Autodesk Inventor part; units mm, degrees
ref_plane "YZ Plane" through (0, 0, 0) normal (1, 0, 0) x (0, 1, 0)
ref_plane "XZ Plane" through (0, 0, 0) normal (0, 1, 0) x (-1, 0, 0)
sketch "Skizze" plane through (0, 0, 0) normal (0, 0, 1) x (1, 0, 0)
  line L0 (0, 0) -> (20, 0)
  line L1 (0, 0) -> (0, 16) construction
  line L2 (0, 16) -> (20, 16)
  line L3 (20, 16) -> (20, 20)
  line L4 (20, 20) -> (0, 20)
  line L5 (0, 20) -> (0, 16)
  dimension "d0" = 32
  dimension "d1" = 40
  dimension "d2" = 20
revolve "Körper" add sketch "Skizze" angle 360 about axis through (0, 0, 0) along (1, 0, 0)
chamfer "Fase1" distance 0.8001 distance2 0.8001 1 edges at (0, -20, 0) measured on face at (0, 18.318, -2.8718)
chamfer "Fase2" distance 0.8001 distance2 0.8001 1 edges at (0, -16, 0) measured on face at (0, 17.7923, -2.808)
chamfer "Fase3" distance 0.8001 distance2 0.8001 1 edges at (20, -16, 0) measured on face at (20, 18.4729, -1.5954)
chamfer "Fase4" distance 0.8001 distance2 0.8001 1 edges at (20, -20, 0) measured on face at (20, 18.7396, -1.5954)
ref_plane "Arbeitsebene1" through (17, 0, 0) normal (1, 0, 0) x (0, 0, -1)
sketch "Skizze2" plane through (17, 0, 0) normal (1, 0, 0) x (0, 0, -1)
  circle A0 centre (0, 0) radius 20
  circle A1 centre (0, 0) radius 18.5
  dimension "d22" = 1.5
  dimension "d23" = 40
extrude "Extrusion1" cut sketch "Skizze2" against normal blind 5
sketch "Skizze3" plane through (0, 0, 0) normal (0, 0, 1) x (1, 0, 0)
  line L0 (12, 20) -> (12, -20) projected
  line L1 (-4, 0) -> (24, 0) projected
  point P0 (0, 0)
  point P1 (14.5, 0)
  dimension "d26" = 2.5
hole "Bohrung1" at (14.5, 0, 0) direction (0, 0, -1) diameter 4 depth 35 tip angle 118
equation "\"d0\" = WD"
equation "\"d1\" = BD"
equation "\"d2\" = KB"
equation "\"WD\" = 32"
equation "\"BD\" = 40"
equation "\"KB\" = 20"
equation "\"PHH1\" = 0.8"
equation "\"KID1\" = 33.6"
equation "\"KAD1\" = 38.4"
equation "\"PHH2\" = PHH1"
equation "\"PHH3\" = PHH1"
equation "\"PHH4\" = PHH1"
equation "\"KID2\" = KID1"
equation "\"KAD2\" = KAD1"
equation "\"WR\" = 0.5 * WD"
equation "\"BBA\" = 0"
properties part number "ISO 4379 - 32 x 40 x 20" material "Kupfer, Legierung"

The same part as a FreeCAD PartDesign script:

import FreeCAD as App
import Part
import Sketcher
from FreeCAD import Vector
Q = App.Units.Quantity


def edges_at(feature, points):
    """Names of the edges that pass closest to the given points."""
    edges = feature.Shape.Edges
    near = lambda p: min(range(len(edges)), key=lambda i: edges[i].distToShape(Part.Vertex(*p))[0])
    return sorted({f"Edge{near(p) + 1}" for p in points})

doc = App.newDocument("Part")
body = doc.addObject("PartDesign::Body", "Body")

# Sketch on XY plane
sketch1 = doc.addObject("Sketcher::SketchObject", "Sketch")
body.addObject(sketch1)
sketch1.AttachmentSupport = (doc.XY_Plane, [""])
sketch1.MapMode = "FlatFace"
sketch1.addGeometry(Part.LineSegment(Vector(0, 20, 0), Vector(0, 16, 0)), False)
sketch1.addGeometry(Part.LineSegment(Vector(0, 16, 0), Vector(20, 16, 0)), False)
sketch1.addGeometry(Part.LineSegment(Vector(20, 16, 0), Vector(20, 20, 0)), False)
sketch1.addGeometry(Part.LineSegment(Vector(20, 20, 0), Vector(0, 20, 0)), False)
sketch1.addConstraint(Sketcher.Constraint("Coincident", 0, 2, 1, 1))
sketch1.addConstraint(Sketcher.Constraint("Coincident", 1, 2, 2, 1))
sketch1.addConstraint(Sketcher.Constraint("Coincident", 2, 2, 3, 1))
sketch1.addConstraint(Sketcher.Constraint("Coincident", 3, 2, 0, 1))
sketch1.addConstraint(Sketcher.Constraint("Vertical", 0))
sketch1.addConstraint(Sketcher.Constraint("Horizontal", 1))
sketch1.addConstraint(Sketcher.Constraint("Vertical", 2))
sketch1.addConstraint(Sketcher.Constraint("Horizontal", 3))
sketch1.addConstraint(Sketcher.Constraint("PointOnObject", 0, 2, -2))
sketch1.addConstraint(Sketcher.Constraint("DistanceX", 1, 1, 1, 2, Q("20 mm")))
sketch1.addConstraint(Sketcher.Constraint("DistanceY", -1, 1, 2, 2, Q("20 mm")))
sketch1.addConstraint(Sketcher.Constraint("DistanceY", 0, 2, 0, 1, Q("4 mm")))
revolution = doc.addObject("PartDesign::Revolution", "Revolution")
body.addObject(revolution)
revolution.Profile = sketch1
revolution.ReferenceAxis = (sketch1, ["H_Axis"])
revolution.Angle = 360
doc.recompute()

chamfer = doc.addObject("PartDesign::Chamfer", "Chamfer")
body.addObject(chamfer)
chamfer.Base = (revolution, edges_at(revolution, [(0, -20, 0)]))
chamfer.ChamferType = "Two distances"
chamfer.Size = 0.8001
chamfer.Size2 = 0.8001
doc.recompute()

chamfer2 = doc.addObject("PartDesign::Chamfer", "Chamfer001")
body.addObject(chamfer2)
chamfer2.Base = (chamfer, edges_at(chamfer, [(0, -16, 0)]))
chamfer2.ChamferType = "Two distances"
chamfer2.Size = 0.8001
chamfer2.Size2 = 0.8001
doc.recompute()

chamfer3 = doc.addObject("PartDesign::Chamfer", "Chamfer002")
body.addObject(chamfer3)
chamfer3.Base = (chamfer2, edges_at(chamfer2, [(20, -16, 0)]))
chamfer3.ChamferType = "Two distances"
chamfer3.Size = 0.8001
chamfer3.Size2 = 0.8001
doc.recompute()

chamfer4 = doc.addObject("PartDesign::Chamfer", "Chamfer003")
body.addObject(chamfer4)
chamfer4.Base = (chamfer3, edges_at(chamfer3, [(20, -20, 0)]))
chamfer4.ChamferType = "Two distances"
chamfer4.Size = 0.8001
chamfer4.Size2 = 0.8001

# Sketch on YZ plane
sketch2 = doc.addObject("Sketcher::SketchObject", "Sketch001")
body.addObject(sketch2)
sketch2.AttachmentSupport = (doc.YZ_Plane, [""])
sketch2.MapMode = "FlatFace"
sketch2.AttachmentOffset = App.Placement(Vector(0, 0, 17), App.Rotation())
sketch2.addGeometry(Part.Circle(Vector(0, 0, 0), Vector(0, 0, 1), 20), False)
sketch2.addGeometry(Part.Circle(Vector(0, 0, 0), Vector(0, 0, 1), 18), False)
sketch2.addConstraint(Sketcher.Constraint("Coincident", 0, 3, -1, 1))
sketch2.addConstraint(Sketcher.Constraint("Coincident", 1, 3, -1, 1))
sketch2.addConstraint(Sketcher.Constraint("Diameter", 0, Q("40 mm")))
sketch2.addConstraint(Sketcher.Constraint("Diameter", 1, Q("37 mm")))
pocket1 = doc.addObject("PartDesign::Pocket", "Pocket")
body.addObject(pocket1)
pocket1.Profile = sketch2
pocket1.Length = 5

# Sketch on XY plane
sketch3 = doc.addObject("Sketcher::SketchObject", "Sketch002")
body.addObject(sketch3)
sketch3.AttachmentSupport = (doc.XY_Plane, [""])
sketch3.MapMode = "FlatFace"
sketch3.addGeometry(Part.Circle(Vector(14.5, 0, 0), Vector(0, 0, 1), 2), False)
sketch3.addConstraint(Sketcher.Constraint("PointOnObject", 0, 3, -1))
sketch3.addConstraint(Sketcher.Constraint("Diameter", 0, Q("4 mm")))
sketch3.addConstraint(Sketcher.Constraint("DistanceX", -1, 1, 0, 3, Q("14.5 mm")))
doc.recompute()
hole = doc.addObject("PartDesign::Hole", "Hole")
body.addObject(hole)
hole.Profile = sketch3
hole.ThreadType = "None"
hole.Diameter = 4
hole.DepthType = "Dimension"
hole.Depth = 35
hole.DrillPoint = "Angled"
hole.DrillPointAngle = 118

doc.recompute()
